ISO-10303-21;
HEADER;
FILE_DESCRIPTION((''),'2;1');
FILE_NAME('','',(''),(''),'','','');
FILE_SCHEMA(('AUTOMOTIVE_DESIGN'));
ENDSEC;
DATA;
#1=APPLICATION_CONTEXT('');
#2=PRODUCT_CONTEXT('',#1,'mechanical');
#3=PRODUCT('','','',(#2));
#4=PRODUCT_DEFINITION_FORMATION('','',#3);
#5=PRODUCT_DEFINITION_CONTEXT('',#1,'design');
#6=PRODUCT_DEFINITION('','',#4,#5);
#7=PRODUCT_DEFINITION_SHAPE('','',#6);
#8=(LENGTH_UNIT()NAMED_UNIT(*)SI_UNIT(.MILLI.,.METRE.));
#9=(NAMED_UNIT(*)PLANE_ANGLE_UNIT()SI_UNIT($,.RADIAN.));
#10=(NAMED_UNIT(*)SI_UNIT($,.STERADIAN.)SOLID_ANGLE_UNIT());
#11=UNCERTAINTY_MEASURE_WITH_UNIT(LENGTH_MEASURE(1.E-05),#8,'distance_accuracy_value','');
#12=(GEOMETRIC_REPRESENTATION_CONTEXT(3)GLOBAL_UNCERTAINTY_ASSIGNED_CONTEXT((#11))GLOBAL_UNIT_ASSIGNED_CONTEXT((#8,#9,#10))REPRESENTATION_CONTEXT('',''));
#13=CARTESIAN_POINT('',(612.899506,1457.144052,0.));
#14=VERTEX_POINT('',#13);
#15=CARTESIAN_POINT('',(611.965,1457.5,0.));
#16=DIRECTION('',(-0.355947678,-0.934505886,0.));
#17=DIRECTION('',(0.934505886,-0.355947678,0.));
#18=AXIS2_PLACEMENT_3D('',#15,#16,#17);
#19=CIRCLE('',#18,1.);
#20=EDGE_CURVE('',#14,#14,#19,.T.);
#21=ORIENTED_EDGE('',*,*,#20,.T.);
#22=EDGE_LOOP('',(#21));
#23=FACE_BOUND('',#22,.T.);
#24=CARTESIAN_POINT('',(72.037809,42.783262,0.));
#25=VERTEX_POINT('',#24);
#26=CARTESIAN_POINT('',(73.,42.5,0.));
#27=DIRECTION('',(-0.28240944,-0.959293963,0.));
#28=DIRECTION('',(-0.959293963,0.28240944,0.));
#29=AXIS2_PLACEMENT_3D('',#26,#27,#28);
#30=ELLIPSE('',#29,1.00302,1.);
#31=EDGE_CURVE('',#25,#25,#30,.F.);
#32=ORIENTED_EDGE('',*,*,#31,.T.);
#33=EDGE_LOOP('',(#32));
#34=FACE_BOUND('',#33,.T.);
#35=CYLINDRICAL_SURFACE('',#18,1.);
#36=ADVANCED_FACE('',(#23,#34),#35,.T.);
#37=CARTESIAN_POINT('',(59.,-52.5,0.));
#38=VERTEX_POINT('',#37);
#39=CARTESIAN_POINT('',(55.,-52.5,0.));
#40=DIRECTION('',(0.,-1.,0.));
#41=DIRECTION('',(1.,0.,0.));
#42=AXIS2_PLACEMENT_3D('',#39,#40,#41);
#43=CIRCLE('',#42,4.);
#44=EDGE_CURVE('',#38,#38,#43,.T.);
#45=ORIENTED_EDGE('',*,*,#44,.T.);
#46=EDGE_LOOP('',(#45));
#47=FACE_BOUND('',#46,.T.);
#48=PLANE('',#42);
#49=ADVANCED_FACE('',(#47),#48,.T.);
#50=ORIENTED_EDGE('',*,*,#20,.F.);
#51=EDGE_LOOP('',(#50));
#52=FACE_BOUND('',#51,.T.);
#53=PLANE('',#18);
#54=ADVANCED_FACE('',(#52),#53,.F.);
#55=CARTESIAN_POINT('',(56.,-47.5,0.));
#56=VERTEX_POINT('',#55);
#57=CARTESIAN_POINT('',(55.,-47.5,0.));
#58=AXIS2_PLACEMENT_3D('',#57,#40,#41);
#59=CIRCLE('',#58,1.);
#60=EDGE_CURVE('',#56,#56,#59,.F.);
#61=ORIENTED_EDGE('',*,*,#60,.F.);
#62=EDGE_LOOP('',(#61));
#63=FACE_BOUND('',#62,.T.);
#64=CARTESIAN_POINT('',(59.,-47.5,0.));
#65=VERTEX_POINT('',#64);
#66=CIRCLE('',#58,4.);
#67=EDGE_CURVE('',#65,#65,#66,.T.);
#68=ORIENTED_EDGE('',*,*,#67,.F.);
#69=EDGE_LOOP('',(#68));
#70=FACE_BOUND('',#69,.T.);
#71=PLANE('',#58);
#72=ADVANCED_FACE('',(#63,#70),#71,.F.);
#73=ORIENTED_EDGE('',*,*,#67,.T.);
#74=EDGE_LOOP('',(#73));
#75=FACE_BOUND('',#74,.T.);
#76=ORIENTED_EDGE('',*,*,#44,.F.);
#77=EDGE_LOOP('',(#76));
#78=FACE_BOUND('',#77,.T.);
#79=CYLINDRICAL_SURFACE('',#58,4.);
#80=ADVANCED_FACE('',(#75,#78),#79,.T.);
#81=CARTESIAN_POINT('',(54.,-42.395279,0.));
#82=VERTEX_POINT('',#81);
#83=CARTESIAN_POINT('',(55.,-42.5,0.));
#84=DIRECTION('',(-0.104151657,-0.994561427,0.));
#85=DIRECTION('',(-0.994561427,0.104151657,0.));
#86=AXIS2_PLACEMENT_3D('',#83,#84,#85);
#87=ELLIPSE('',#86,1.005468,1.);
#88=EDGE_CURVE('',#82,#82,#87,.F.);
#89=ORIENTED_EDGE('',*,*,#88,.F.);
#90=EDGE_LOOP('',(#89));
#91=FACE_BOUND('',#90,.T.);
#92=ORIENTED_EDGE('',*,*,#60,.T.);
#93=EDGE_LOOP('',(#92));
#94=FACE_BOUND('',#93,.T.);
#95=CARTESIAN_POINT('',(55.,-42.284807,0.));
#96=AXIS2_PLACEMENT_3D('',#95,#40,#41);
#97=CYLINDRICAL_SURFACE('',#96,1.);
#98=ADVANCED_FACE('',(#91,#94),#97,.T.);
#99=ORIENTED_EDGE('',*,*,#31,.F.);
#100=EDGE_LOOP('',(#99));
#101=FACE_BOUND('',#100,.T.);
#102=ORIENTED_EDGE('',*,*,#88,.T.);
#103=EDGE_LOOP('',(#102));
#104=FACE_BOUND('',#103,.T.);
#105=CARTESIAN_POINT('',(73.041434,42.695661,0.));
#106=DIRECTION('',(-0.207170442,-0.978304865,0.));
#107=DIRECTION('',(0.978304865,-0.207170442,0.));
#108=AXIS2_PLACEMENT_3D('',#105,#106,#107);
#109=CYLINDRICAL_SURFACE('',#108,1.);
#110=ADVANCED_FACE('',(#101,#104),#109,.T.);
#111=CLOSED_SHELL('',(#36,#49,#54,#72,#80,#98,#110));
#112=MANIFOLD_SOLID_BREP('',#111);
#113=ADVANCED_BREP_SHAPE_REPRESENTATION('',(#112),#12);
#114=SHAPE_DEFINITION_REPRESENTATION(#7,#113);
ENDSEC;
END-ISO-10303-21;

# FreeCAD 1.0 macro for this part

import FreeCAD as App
import Part
import Sketcher

doc = App.newDocument("Part")
body = doc.addObject("PartDesign::Body", "Body")

# Sketch on an angled plane
sketch1 = doc.addObject("Sketcher::SketchObject", "Sketch")
body.addObject(sketch1)
sketch1.Placement = App.Placement(App.Vector(611.965, 1457.5, 0), App.Rotation(App.Vector(-0.934505886, 0.355947678, 0), App.Vector(0, 0, -1), App.Vector(-0.355947678, -0.934505886, 0), "ZXY"))
sketch1.addGeometry(Part.Circle(App.Vector(0, 0, 0), App.Vector(0, 0, 1), 1), False)
sketch1.addConstraint(Sketcher.Constraint("Coincident", 0, 3, -1, 1))
sketch1.addConstraint(Sketcher.Constraint("Diameter", 0, 2.0))

# Sketch on XY plane
sketch2 = doc.addObject("Sketcher::SketchObject", "Sketch001")
body.addObject(sketch2)
sketch2.AttachmentSupport = (doc.XY_Plane, [""])
sketch2.MapMode = "FlatFace"
sketch2.addGeometry(Part.LineSegment(App.Vector(611.965, 1457.5, 0), App.Vector(73, 42.5, 0)), False)
sketch2.addGeometry(Part.LineSegment(App.Vector(73, 42.5, 0), App.Vector(55, -42.5, 0)), False)
sketch2.addGeometry(Part.LineSegment(App.Vector(55, -42.5, 0), App.Vector(55, -52.5, 0)), False)
sketch2.addConstraint(Sketcher.Constraint("Coincident", 0, 2, 1, 1))
sketch2.addConstraint(Sketcher.Constraint("Coincident", 1, 2, 2, 1))
sketch2.addConstraint(Sketcher.Constraint("Vertical", 2))
sketch2.addConstraint(Sketcher.Constraint("DistanceY", 2, 2, 2, 1, 10.0))
sketch2.addConstraint(Sketcher.Constraint("DistanceX", -1, 1, 0, 2, 73.0))
sketch2.addConstraint(Sketcher.Constraint("DistanceX", -1, 1, 1, 2, 55.0))
sketch2.addConstraint(Sketcher.Constraint("DistanceY", 0, 2, 0, 1, 1415.0))
sketch2.addConstraint(Sketcher.Constraint("DistanceY", 1, 2, 0, 2, 85.0))
sketch2.addConstraint(Sketcher.Constraint("DistanceY", -1, 1, 0, 1, 1457.5))
sketch2.addConstraint(Sketcher.Constraint("DistanceX", -1, 1, 0, 1, 611.965))
doc.recompute()

additivepipe = doc.addObject("PartDesign::AdditivePipe", "AdditivePipe")
body.addObject(additivepipe)
additivepipe.Profile = sketch1
additivepipe.Spine = (sketch2, ["Edge1", "Edge2", "Edge3"])
additivepipe.Transition = "Right corner"

# Sketch on XZ plane
sketch3 = doc.addObject("Sketcher::SketchObject", "Sketch002")
body.addObject(sketch3)
sketch3.AttachmentSupport = (doc.XZ_Plane, [""])
sketch3.MapMode = "FlatFace"
sketch3.AttachmentOffset = App.Placement(App.Vector(0, 0, 52.5), App.Rotation())
sketch3.addGeometry(Part.Circle(App.Vector(55, 0, 0), App.Vector(0, 0, 1), 4), False)
sketch3.addConstraint(Sketcher.Constraint("PointOnObject", 0, 3, -1))
sketch3.addConstraint(Sketcher.Constraint("Diameter", 0, 8.0))
sketch3.addConstraint(Sketcher.Constraint("DistanceX", -1, 1, 0, 3, 55.0))
pad1 = doc.addObject("PartDesign::Pad", "Pad")
body.addObject(pad1)
pad1.Profile = sketch3
pad1.Length = 5
pad1.Reversed = True

doc.recompute()
